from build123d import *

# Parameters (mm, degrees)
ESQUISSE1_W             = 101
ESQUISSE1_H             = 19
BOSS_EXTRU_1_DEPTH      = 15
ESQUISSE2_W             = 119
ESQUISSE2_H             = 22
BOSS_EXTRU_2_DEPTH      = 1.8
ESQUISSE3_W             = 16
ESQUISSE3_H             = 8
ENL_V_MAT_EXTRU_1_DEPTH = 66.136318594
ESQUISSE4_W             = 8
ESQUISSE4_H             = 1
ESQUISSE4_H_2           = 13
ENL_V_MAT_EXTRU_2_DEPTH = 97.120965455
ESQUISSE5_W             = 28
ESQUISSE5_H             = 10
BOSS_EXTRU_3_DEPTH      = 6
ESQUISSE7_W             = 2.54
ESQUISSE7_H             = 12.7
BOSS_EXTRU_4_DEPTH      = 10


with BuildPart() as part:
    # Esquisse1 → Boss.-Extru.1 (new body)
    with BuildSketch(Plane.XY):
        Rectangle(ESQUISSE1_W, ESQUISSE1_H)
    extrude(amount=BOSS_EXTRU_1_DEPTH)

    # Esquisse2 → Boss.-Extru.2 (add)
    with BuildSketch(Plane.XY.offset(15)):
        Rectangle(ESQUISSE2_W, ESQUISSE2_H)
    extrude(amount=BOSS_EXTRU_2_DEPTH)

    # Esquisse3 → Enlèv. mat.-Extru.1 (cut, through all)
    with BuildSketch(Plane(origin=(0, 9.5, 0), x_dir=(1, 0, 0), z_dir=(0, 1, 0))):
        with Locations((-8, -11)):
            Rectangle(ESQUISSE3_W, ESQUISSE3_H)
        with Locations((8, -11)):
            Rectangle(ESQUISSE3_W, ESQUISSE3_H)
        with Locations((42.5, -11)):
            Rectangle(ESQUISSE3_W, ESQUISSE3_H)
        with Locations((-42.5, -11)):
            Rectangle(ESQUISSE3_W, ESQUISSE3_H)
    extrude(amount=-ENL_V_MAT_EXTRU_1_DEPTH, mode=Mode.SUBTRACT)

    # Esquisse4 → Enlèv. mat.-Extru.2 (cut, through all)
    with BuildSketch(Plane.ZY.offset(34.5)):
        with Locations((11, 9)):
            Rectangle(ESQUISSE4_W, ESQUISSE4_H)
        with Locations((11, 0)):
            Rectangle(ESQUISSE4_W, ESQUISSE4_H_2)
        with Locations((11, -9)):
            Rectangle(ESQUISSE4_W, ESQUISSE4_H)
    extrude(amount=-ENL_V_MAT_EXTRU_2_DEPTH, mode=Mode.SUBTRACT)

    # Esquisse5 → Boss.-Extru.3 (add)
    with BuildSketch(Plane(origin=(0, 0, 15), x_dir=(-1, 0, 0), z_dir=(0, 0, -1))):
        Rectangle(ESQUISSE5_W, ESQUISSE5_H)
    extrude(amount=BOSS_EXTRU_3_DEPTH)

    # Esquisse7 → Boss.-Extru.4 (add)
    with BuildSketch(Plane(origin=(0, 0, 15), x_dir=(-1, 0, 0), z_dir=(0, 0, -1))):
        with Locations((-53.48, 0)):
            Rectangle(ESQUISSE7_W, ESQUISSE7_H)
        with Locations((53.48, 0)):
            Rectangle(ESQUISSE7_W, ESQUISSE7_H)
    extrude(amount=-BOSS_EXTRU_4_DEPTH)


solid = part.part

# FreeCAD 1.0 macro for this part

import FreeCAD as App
import Part
import Sketcher
from FreeCAD import Vector
Q = App.Units.Quantity


def add_polygon(sketch, points):
    """Adds a closed chain of lines whose ends are joined by coincident constraints."""
    first, n = sketch.GeometryCount, len(points)
    for a, b in zip(points, points[1:] + points[:1]):
        sketch.addGeometry(Part.LineSegment(App.Vector(*a, 0), App.Vector(*b, 0)), False)
    for i in range(n):
        sketch.addConstraint(Sketcher.Constraint("Coincident", first + i, 2, first + (i + 1) % n, 1))

doc = App.newDocument("Part")
body = doc.addObject("PartDesign::Body", "Body")

# Sketch on XY plane
sketch1 = body.newObject("Sketcher::SketchObject", "Sketch")
sketch1.AttachmentSupport = (doc.getObject("XY_Plane"), [""])
sketch1.MapMode = "FlatFace"
add_polygon(sketch1, [(-50, 10), (-50, -10), (50, -10), (50, 10)])  # lines 0-3
sketch1.addConstraint(Sketcher.Constraint("Vertical", 0))
sketch1.addConstraint(Sketcher.Constraint("Horizontal", 1))
sketch1.addConstraint(Sketcher.Constraint("Vertical", 2))
sketch1.addConstraint(Sketcher.Constraint("Horizontal", 3))
sketch1.addConstraint(Sketcher.Constraint("Symmetric", 0, 2, 2, 2, -1, 1))
sketch1.addConstraint(Sketcher.Constraint("DistanceX", 1, 1, 1, 2, Q("101 mm")))
sketch1.addConstraint(Sketcher.Constraint("DistanceY", 0, 2, 0, 1, Q("19 mm")))
pad1 = body.newObject("PartDesign::Pad", "Pad")
pad1.Profile = sketch1
pad1.Length = 15

# Sketch on XY plane
sketch2 = body.newObject("Sketcher::SketchObject", "Sketch001")
sketch2.AttachmentSupport = (doc.getObject("XY_Plane"), [""])
sketch2.MapMode = "FlatFace"
sketch2.AttachmentOffset = App.Placement(Vector(0, 0, 15), App.Rotation())
add_polygon(sketch2, [(-60, 11), (-60, -11), (60, -11), (60, 11)])  # lines 0-3
sketch2.addConstraint(Sketcher.Constraint("Vertical", 0))
sketch2.addConstraint(Sketcher.Constraint("Horizontal", 1))
sketch2.addConstraint(Sketcher.Constraint("Vertical", 2))
sketch2.addConstraint(Sketcher.Constraint("Horizontal", 3))
sketch2.addConstraint(Sketcher.Constraint("Symmetric", 0, 2, 2, 2, -1, 1))
sketch2.addConstraint(Sketcher.Constraint("DistanceX", 1, 1, 1, 2, Q("119 mm")))
sketch2.addConstraint(Sketcher.Constraint("DistanceY", 0, 2, 0, 1, Q("22 mm")))
pad2 = body.newObject("PartDesign::Pad", "Pad001")
pad2.Profile = sketch2
pad2.Length = 1.8

# Sketch on XZ plane
sketch3 = body.newObject("Sketcher::SketchObject", "Sketch002")
sketch3.AttachmentSupport = (doc.getObject("XZ_Plane"), [""])
sketch3.MapMode = "FlatFace"
sketch3.AttachmentOffset = App.Placement(Vector(0, 0, -9.5), App.Rotation())
add_polygon(sketch3, [(-16, 7), (-16, 15), (16, 15), (16, 7)])  # lines 0-3
add_polygon(sketch3, [(34, 7), (34, 15), (50, 15), (50, 7)])  # lines 4-7
add_polygon(sketch3, [(-50, 7), (-50, 15), (-34, 15), (-34, 7)])  # lines 8-11
sketch3.addConstraint(Sketcher.Constraint("Vertical", 0))
sketch3.addConstraint(Sketcher.Constraint("Horizontal", 1))
sketch3.addConstraint(Sketcher.Constraint("Vertical", 2))
sketch3.addConstraint(Sketcher.Constraint("Horizontal", 3))
sketch3.addConstraint(Sketcher.Constraint("Vertical", 4))
sketch3.addConstraint(Sketcher.Constraint("Horizontal", 5))
sketch3.addConstraint(Sketcher.Constraint("Vertical", 6))
sketch3.addConstraint(Sketcher.Constraint("Horizontal", 7))
sketch3.addConstraint(Sketcher.Constraint("Vertical", 8))
sketch3.addConstraint(Sketcher.Constraint("Horizontal", 9))
sketch3.addConstraint(Sketcher.Constraint("Vertical", 10))
sketch3.addConstraint(Sketcher.Constraint("Horizontal", 11))
sketch3.addConstraint(Sketcher.Constraint("Symmetric", 5, 2, 8, 2, -2))
sketch3.addConstraint(Sketcher.Constraint("Symmetric", 7, 2, 10, 2, -2))
sketch3.addConstraint(Sketcher.Constraint("Horizontal", 1, 2, 4, 2))
sketch3.addConstraint(Sketcher.Constraint("Horizontal", 3, 2, 6, 2))
sketch3.addConstraint(Sketcher.Constraint("DistanceX", 1, 1, 1, 2, Q("32 mm")))
sketch3.addConstraint(Sketcher.Constraint("DistanceX", 5, 1, 5, 2, Q("16 mm")))
sketch3.addConstraint(Sketcher.Constraint("DistanceY", 0, 1, 0, 2, Q("8 mm")))
sketch3.addConstraint(Sketcher.Constraint("DistanceX", 0, 2, -1, 1, Q("16 mm")))
sketch3.addConstraint(Sketcher.Constraint("DistanceY", -1, 1, 0, 2, Q("15 mm")))
sketch3.addConstraint(Sketcher.Constraint("DistanceX", 8, 2, 4, 2, Q("85 mm")))
pocket1 = body.newObject("PartDesign::Pocket", "Pocket")
pocket1.Profile = sketch3
pocket1.Type = "ThroughAll"
pocket1.Reversed = True

# Sketch on YZ plane
sketch4 = body.newObject("Sketcher::SketchObject", "Sketch003")
sketch4.AttachmentSupport = (doc.getObject("YZ_Plane"), [""])
sketch4.MapMode = "FlatFace"
sketch4.AttachmentOffset = App.Placement(Vector(0, 0, -34.5), App.Rotation())
add_polygon(sketch4, [(9.5, 7), (8.5, 7), (8.5, 15), (9.5, 15)])  # lines 0-3
add_polygon(sketch4, [(6.5, 7), (-6.5, 7), (-6.5, 15), (6.5, 15)])  # lines 4-7
add_polygon(sketch4, [(-8.5, 7), (-9.5, 7), (-9.5, 15), (-8.5, 15)])  # lines 8-11
sketch4.addConstraint(Sketcher.Constraint("Horizontal", 0))
sketch4.addConstraint(Sketcher.Constraint("Vertical", 1))
sketch4.addConstraint(Sketcher.Constraint("Horizontal", 2))
sketch4.addConstraint(Sketcher.Constraint("Vertical", 3))
sketch4.addConstraint(Sketcher.Constraint("Horizontal", 4))
sketch4.addConstraint(Sketcher.Constraint("Vertical", 5))
sketch4.addConstraint(Sketcher.Constraint("Horizontal", 6))
sketch4.addConstraint(Sketcher.Constraint("Vertical", 7))
sketch4.addConstraint(Sketcher.Constraint("Horizontal", 8))
sketch4.addConstraint(Sketcher.Constraint("Vertical", 9))
sketch4.addConstraint(Sketcher.Constraint("Horizontal", 10))
sketch4.addConstraint(Sketcher.Constraint("Vertical", 11))
sketch4.addConstraint(Sketcher.Constraint("Symmetric", 3, 2, 8, 2, -2))
sketch4.addConstraint(Sketcher.Constraint("Symmetric", 1, 2, 10, 2, -2))
sketch4.addConstraint(Sketcher.Constraint("Horizontal", 3, 2, 4, 2))
sketch4.addConstraint(Sketcher.Constraint("Horizontal", 2, 2, 5, 2))
sketch4.addConstraint(Sketcher.Constraint("DistanceX", 0, 2, 0, 1, Q("1 mm")))
sketch4.addConstraint(Sketcher.Constraint("DistanceX", 4, 2, 4, 1, Q("13 mm")))
sketch4.addConstraint(Sketcher.Constraint("DistanceY", 1, 1, 1, 2, Q("8 mm")))
sketch4.addConstraint(Sketcher.Constraint("DistanceY", -1, 1, 0, 2, Q("7 mm")))
sketch4.addConstraint(Sketcher.Constraint("DistanceX", 4, 2, 0, 2, Q("15 mm")))
sketch4.addConstraint(Sketcher.Constraint("DistanceX", 8, 2, 4, 2, Q("3 mm")))
pocket2 = body.newObject("PartDesign::Pocket", "Pocket001")
pocket2.Profile = sketch4
pocket2.Type = "ThroughAll"
pocket2.Reversed = True

# Sketch on XY plane
sketch5 = body.newObject("Sketcher::SketchObject", "Sketch004")
sketch5.AttachmentSupport = (doc.getObject("XY_Plane"), [""])
sketch5.MapMode = "FlatFace"
sketch5.AttachmentOffset = App.Placement(Vector(0, 0, 15), App.Rotation())
add_polygon(sketch5, [(14, 5), (14, -5), (-14, -5), (-14, 5)])  # lines 0-3
sketch5.addConstraint(Sketcher.Constraint("Vertical", 0))
sketch5.addConstraint(Sketcher.Constraint("Horizontal", 1))
sketch5.addConstraint(Sketcher.Constraint("Vertical", 2))
sketch5.addConstraint(Sketcher.Constraint("Horizontal", 3))
sketch5.addConstraint(Sketcher.Constraint("Symmetric", 0, 2, 2, 2, -1, 1))
sketch5.addConstraint(Sketcher.Constraint("DistanceX", 1, 2, 1, 1, Q("28 mm")))
sketch5.addConstraint(Sketcher.Constraint("DistanceY", 0, 2, 0, 1, Q("10 mm")))
pad3 = body.newObject("PartDesign::Pad", "Pad002")
pad3.Profile = sketch5
pad3.Length = 6
pad3.Reversed = True

# Sketch on XY plane
sketch6 = body.newObject("Sketcher::SketchObject", "Sketch005")
sketch6.AttachmentSupport = (doc.getObject("XY_Plane"), [""])
sketch6.MapMode = "FlatFace"
sketch6.AttachmentOffset = App.Placement(Vector(0, 0, 15), App.Rotation())
add_polygon(sketch6, [(54.8, 6.3), (54.8, -6.3), (52.2, -6.3), (52.2, 6.3)])  # lines 0-3
add_polygon(sketch6, [(-52.2, 6.3), (-52.2, -6.3), (-54.8, -6.3), (-54.8, 6.3)])  # lines 4-7
sketch6.addConstraint(Sketcher.Constraint("Vertical", 0))
sketch6.addConstraint(Sketcher.Constraint("Horizontal", 1))
sketch6.addConstraint(Sketcher.Constraint("Vertical", 2))
sketch6.addConstraint(Sketcher.Constraint("Horizontal", 3))
sketch6.addConstraint(Sketcher.Constraint("Vertical", 4))
sketch6.addConstraint(Sketcher.Constraint("Horizontal", 5))
sketch6.addConstraint(Sketcher.Constraint("Vertical", 6))
sketch6.addConstraint(Sketcher.Constraint("Horizontal", 7))
sketch6.addConstraint(Sketcher.Constraint("Symmetric", 2, 2, 4, 2, -1, 1))
sketch6.addConstraint(Sketcher.Constraint("Symmetric", 0, 2, 6, 2, -1, 1))
sketch6.addConstraint(Sketcher.Constraint("Horizontal", 1, 2, 4, 2))
sketch6.addConstraint(Sketcher.Constraint("DistanceY", 0, 2, 0, 1, Q("12.7 mm")))
sketch6.addConstraint(Sketcher.Constraint("DistanceX", 1, 2, 1, 1, Q("2.54 mm")))
sketch6.addConstraint(Sketcher.Constraint("DistanceX", 5, 2, 0, 2, Q("109.5 mm")))
pad4 = body.newObject("PartDesign::Pad", "Pad003")
pad4.Profile = sketch6
pad4.Length = 10

doc.recompute()
